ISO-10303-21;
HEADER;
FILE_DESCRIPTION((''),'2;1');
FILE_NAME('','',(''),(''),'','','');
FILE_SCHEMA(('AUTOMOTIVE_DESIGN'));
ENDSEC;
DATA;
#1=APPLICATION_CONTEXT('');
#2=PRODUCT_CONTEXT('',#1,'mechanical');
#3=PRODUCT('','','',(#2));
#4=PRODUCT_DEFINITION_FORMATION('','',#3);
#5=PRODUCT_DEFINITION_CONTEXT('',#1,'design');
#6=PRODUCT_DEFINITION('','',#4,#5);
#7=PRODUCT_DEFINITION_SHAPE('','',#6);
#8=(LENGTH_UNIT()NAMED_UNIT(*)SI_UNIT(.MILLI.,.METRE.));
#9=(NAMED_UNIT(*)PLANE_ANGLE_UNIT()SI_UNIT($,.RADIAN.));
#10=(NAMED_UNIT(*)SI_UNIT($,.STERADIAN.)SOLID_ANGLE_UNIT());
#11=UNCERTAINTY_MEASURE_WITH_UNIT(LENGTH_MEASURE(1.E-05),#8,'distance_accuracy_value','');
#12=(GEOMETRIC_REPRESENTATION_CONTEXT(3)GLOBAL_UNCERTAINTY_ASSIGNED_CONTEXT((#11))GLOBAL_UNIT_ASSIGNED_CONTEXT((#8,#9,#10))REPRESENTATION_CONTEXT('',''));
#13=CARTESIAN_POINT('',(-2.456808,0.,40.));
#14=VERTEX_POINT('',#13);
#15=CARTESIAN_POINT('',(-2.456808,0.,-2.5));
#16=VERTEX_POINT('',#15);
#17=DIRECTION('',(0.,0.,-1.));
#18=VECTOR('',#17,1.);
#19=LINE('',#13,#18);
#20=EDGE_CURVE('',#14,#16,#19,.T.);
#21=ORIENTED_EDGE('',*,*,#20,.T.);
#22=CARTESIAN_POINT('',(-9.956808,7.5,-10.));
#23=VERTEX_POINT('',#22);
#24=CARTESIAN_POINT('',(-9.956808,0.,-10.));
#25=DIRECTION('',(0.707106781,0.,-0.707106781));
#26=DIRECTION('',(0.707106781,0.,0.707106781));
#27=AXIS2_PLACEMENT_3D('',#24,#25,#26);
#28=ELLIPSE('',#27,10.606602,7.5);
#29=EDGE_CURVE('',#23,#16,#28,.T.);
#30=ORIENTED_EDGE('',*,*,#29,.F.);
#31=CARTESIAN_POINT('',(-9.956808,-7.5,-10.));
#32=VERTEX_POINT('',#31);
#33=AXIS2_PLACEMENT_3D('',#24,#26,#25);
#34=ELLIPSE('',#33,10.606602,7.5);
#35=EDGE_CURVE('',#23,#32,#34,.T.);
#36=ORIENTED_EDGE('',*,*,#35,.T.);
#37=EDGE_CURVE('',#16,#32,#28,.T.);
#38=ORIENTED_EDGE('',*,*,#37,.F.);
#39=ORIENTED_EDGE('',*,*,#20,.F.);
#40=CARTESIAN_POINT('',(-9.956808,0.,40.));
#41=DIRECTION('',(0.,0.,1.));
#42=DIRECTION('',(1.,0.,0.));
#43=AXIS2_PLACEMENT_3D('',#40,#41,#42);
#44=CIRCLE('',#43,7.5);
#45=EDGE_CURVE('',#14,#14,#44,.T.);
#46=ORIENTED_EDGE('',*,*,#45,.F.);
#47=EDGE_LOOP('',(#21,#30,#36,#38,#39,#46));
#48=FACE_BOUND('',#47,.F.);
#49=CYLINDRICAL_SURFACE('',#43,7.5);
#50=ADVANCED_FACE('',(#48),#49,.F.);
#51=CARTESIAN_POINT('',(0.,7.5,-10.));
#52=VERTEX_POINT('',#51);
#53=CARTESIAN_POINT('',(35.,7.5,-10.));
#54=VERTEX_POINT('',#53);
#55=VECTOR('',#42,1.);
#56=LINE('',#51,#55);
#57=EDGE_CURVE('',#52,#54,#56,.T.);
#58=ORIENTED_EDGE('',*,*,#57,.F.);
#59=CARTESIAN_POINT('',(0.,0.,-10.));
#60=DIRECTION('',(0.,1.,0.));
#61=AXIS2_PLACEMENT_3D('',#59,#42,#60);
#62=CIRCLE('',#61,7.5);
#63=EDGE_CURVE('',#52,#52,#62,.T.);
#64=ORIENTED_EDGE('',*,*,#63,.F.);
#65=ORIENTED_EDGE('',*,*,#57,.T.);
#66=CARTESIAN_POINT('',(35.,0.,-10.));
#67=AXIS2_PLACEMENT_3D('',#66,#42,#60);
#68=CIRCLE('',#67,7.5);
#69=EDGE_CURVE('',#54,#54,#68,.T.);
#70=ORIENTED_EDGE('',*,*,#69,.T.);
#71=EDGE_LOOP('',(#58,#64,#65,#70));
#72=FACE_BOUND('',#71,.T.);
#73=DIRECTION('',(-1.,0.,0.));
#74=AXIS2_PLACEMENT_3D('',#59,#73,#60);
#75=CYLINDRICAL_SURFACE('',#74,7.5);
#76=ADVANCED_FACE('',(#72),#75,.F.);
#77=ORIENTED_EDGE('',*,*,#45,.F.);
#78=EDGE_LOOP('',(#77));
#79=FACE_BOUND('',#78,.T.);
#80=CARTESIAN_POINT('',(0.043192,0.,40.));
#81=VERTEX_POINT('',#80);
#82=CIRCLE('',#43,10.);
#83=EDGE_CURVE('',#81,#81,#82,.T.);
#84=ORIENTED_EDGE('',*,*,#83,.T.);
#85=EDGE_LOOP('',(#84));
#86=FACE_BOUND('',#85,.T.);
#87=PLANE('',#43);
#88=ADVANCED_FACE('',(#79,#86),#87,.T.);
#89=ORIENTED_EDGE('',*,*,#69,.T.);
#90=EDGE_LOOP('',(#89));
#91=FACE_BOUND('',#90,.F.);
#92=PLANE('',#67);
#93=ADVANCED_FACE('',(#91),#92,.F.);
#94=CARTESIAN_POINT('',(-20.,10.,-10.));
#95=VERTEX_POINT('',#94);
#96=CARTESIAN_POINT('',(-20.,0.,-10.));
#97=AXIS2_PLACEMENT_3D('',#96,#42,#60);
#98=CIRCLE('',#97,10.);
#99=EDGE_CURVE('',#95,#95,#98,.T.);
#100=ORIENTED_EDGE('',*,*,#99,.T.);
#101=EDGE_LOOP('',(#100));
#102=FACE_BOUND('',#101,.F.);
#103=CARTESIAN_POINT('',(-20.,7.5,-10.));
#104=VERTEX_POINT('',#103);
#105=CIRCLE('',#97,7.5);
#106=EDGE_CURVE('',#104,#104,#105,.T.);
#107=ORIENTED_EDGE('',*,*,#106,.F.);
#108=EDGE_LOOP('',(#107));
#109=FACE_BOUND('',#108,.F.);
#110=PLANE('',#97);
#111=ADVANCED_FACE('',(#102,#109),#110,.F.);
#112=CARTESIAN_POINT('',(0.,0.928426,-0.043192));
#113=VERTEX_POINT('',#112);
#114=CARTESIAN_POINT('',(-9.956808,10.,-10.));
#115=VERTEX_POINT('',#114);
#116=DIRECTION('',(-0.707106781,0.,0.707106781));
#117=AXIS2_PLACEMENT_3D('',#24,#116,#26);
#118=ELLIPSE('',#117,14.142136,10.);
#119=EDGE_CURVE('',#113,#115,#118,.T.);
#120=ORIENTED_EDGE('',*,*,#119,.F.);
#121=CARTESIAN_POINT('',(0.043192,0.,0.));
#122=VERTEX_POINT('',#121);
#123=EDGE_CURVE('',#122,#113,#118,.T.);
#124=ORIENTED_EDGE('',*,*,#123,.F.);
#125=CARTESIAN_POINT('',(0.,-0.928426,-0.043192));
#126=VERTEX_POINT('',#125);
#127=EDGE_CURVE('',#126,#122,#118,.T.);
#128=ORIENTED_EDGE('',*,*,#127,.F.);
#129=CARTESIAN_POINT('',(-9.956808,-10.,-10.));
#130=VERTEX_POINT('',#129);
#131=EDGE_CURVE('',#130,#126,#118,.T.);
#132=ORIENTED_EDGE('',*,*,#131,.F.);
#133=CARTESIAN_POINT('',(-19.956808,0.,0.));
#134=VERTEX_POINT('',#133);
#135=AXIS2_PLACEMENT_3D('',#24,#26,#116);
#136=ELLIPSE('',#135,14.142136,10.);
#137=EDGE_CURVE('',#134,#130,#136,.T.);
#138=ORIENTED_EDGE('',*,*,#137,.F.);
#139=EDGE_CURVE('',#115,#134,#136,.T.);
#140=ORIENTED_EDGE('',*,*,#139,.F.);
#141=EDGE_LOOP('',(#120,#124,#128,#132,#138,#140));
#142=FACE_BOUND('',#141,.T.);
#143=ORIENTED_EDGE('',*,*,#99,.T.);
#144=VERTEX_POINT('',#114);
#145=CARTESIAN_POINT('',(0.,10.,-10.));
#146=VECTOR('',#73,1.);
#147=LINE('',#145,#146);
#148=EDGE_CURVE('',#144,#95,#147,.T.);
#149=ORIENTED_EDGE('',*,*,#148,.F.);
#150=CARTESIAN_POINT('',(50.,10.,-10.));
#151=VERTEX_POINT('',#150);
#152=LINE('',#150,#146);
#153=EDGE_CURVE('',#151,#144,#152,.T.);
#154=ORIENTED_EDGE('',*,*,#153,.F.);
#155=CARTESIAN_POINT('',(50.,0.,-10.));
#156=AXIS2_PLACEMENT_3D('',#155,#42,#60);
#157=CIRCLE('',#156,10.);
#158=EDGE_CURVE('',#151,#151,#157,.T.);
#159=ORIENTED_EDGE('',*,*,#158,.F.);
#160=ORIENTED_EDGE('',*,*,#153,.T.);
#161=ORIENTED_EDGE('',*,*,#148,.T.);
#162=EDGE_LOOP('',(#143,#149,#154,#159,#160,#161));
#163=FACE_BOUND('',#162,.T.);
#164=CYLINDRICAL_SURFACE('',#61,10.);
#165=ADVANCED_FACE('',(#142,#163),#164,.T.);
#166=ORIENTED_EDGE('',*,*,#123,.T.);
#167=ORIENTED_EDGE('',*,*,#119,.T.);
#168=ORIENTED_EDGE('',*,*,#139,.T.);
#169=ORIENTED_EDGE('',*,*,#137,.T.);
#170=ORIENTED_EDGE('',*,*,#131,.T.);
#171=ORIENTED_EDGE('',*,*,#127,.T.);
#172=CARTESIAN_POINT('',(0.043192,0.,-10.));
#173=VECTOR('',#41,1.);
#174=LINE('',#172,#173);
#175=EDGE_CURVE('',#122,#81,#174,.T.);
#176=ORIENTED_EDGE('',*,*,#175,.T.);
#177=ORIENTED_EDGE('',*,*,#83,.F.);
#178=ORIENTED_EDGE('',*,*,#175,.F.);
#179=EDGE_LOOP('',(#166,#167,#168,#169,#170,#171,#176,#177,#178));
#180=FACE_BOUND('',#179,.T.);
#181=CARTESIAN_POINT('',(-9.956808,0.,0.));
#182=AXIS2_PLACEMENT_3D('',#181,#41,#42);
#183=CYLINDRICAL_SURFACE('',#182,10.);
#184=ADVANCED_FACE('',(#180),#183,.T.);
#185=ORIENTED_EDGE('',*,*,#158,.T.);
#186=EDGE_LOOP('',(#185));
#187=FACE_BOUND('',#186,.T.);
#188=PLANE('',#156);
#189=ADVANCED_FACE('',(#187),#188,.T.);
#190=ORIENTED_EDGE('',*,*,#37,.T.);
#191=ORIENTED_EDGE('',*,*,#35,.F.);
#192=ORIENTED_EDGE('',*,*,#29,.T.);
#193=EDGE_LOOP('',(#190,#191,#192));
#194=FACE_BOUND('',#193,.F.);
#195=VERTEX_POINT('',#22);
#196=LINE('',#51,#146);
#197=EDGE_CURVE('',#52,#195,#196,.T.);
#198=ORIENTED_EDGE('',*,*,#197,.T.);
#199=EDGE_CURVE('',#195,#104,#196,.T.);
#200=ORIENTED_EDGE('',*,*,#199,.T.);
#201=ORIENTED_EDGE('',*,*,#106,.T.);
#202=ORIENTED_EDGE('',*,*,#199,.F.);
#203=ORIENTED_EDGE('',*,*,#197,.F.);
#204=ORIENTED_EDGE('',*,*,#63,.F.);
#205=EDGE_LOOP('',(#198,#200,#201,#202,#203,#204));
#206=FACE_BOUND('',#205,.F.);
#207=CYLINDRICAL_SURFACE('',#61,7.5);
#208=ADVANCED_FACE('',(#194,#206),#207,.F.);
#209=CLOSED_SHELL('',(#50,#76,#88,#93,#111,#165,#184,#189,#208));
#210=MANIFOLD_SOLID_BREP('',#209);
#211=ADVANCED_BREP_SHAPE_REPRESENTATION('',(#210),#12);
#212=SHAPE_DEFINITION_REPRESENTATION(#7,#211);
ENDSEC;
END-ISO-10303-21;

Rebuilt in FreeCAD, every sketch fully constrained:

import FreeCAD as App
import Part
import Sketcher
from FreeCAD import Vector
Q = App.Units.Quantity

doc = App.newDocument("Part")
body = doc.addObject("PartDesign::Body", "Body")

# Sketch on XY plane
sketch1 = body.newObject("Sketcher::SketchObject", "Sketch")
sketch1.AttachmentSupport = (doc.getObject("XY_Plane"), [""])
sketch1.MapMode = "FlatFace"
sketch1.addGeometry(Part.Circle(Vector(-10, 0, 0), Vector(0, 0, 1), 10), False)
sketch1.addConstraint([
    Sketcher.Constraint("PointOnObject", 0, 3, -1),
    Sketcher.Constraint("Diameter", 0, Q("20 mm")),
    Sketcher.Constraint("DistanceX", 0, 3, -1, 1, Q("9.956808 mm")),
])
pad1 = body.newObject("PartDesign::Pad", "Pad")
pad1.Profile = sketch1
pad1.Type = "TwoLengths"
pad1.Length = 40
pad1.Length2 = 10

# Sketch on YZ plane
sketch2 = body.newObject("Sketcher::SketchObject", "Sketch001")
sketch2.AttachmentSupport = (doc.getObject("YZ_Plane"), [""])
sketch2.MapMode = "FlatFace"
sketch2.addGeometry(Part.Circle(Vector(0, -10, 0), Vector(0, 0, 1), 10), False)
sketch2.addConstraint([
    Sketcher.Constraint("PointOnObject", 0, 3, -2),
    Sketcher.Constraint("Diameter", 0, Q("20 mm")),
    Sketcher.Constraint("DistanceY", 0, 3, -1, 1, Q("10 mm")),
])
pad2 = body.newObject("PartDesign::Pad", "Pad001")
pad2.Profile = sketch2
pad2.Type = "TwoLengths"
pad2.Length = 50
pad2.Length2 = 20

# Sketch on YZ plane
sketch3 = body.newObject("Sketcher::SketchObject", "Sketch002")
sketch3.AttachmentSupport = (doc.getObject("YZ_Plane"), [""])
sketch3.MapMode = "FlatFace"
sketch3.addGeometry(Part.Circle(Vector(0, -10, 0), Vector(0, 0, 1), 8), False)
sketch3.addConstraint([
    Sketcher.Constraint("PointOnObject", 0, 3, -2),
    Sketcher.Constraint("Diameter", 0, Q("15 mm")),
    Sketcher.Constraint("DistanceY", 0, 3, -1, 1, Q("10 mm")),
])
pocket1 = body.newObject("PartDesign::Pocket", "Pocket")
pocket1.Profile = sketch3
pocket1.Type = "TwoLengths"
pocket1.Length = 35
pocket1.Length2 = 25
pocket1.Reversed = True

# Sketch on XY plane
sketch4 = body.newObject("Sketcher::SketchObject", "Sketch003")
sketch4.AttachmentSupport = (doc.getObject("XY_Plane"), [""])
sketch4.MapMode = "FlatFace"
sketch4.AttachmentOffset = App.Placement(Vector(0, 0, 40), App.Rotation())
sketch4.addGeometry(Part.Circle(Vector(-10, 0, 0), Vector(0, 0, 1), 8), False)
sketch4.addConstraint([
    Sketcher.Constraint("PointOnObject", 0, 3, -1),
    Sketcher.Constraint("Diameter", 0, Q("15 mm")),
    Sketcher.Constraint("DistanceX", 0, 3, -1, 1, Q("9.956808 mm")),
])
pocket2 = body.newObject("PartDesign::Pocket", "Pocket001")
pocket2.Profile = sketch4
pocket2.Length = 50

doc.recompute()
